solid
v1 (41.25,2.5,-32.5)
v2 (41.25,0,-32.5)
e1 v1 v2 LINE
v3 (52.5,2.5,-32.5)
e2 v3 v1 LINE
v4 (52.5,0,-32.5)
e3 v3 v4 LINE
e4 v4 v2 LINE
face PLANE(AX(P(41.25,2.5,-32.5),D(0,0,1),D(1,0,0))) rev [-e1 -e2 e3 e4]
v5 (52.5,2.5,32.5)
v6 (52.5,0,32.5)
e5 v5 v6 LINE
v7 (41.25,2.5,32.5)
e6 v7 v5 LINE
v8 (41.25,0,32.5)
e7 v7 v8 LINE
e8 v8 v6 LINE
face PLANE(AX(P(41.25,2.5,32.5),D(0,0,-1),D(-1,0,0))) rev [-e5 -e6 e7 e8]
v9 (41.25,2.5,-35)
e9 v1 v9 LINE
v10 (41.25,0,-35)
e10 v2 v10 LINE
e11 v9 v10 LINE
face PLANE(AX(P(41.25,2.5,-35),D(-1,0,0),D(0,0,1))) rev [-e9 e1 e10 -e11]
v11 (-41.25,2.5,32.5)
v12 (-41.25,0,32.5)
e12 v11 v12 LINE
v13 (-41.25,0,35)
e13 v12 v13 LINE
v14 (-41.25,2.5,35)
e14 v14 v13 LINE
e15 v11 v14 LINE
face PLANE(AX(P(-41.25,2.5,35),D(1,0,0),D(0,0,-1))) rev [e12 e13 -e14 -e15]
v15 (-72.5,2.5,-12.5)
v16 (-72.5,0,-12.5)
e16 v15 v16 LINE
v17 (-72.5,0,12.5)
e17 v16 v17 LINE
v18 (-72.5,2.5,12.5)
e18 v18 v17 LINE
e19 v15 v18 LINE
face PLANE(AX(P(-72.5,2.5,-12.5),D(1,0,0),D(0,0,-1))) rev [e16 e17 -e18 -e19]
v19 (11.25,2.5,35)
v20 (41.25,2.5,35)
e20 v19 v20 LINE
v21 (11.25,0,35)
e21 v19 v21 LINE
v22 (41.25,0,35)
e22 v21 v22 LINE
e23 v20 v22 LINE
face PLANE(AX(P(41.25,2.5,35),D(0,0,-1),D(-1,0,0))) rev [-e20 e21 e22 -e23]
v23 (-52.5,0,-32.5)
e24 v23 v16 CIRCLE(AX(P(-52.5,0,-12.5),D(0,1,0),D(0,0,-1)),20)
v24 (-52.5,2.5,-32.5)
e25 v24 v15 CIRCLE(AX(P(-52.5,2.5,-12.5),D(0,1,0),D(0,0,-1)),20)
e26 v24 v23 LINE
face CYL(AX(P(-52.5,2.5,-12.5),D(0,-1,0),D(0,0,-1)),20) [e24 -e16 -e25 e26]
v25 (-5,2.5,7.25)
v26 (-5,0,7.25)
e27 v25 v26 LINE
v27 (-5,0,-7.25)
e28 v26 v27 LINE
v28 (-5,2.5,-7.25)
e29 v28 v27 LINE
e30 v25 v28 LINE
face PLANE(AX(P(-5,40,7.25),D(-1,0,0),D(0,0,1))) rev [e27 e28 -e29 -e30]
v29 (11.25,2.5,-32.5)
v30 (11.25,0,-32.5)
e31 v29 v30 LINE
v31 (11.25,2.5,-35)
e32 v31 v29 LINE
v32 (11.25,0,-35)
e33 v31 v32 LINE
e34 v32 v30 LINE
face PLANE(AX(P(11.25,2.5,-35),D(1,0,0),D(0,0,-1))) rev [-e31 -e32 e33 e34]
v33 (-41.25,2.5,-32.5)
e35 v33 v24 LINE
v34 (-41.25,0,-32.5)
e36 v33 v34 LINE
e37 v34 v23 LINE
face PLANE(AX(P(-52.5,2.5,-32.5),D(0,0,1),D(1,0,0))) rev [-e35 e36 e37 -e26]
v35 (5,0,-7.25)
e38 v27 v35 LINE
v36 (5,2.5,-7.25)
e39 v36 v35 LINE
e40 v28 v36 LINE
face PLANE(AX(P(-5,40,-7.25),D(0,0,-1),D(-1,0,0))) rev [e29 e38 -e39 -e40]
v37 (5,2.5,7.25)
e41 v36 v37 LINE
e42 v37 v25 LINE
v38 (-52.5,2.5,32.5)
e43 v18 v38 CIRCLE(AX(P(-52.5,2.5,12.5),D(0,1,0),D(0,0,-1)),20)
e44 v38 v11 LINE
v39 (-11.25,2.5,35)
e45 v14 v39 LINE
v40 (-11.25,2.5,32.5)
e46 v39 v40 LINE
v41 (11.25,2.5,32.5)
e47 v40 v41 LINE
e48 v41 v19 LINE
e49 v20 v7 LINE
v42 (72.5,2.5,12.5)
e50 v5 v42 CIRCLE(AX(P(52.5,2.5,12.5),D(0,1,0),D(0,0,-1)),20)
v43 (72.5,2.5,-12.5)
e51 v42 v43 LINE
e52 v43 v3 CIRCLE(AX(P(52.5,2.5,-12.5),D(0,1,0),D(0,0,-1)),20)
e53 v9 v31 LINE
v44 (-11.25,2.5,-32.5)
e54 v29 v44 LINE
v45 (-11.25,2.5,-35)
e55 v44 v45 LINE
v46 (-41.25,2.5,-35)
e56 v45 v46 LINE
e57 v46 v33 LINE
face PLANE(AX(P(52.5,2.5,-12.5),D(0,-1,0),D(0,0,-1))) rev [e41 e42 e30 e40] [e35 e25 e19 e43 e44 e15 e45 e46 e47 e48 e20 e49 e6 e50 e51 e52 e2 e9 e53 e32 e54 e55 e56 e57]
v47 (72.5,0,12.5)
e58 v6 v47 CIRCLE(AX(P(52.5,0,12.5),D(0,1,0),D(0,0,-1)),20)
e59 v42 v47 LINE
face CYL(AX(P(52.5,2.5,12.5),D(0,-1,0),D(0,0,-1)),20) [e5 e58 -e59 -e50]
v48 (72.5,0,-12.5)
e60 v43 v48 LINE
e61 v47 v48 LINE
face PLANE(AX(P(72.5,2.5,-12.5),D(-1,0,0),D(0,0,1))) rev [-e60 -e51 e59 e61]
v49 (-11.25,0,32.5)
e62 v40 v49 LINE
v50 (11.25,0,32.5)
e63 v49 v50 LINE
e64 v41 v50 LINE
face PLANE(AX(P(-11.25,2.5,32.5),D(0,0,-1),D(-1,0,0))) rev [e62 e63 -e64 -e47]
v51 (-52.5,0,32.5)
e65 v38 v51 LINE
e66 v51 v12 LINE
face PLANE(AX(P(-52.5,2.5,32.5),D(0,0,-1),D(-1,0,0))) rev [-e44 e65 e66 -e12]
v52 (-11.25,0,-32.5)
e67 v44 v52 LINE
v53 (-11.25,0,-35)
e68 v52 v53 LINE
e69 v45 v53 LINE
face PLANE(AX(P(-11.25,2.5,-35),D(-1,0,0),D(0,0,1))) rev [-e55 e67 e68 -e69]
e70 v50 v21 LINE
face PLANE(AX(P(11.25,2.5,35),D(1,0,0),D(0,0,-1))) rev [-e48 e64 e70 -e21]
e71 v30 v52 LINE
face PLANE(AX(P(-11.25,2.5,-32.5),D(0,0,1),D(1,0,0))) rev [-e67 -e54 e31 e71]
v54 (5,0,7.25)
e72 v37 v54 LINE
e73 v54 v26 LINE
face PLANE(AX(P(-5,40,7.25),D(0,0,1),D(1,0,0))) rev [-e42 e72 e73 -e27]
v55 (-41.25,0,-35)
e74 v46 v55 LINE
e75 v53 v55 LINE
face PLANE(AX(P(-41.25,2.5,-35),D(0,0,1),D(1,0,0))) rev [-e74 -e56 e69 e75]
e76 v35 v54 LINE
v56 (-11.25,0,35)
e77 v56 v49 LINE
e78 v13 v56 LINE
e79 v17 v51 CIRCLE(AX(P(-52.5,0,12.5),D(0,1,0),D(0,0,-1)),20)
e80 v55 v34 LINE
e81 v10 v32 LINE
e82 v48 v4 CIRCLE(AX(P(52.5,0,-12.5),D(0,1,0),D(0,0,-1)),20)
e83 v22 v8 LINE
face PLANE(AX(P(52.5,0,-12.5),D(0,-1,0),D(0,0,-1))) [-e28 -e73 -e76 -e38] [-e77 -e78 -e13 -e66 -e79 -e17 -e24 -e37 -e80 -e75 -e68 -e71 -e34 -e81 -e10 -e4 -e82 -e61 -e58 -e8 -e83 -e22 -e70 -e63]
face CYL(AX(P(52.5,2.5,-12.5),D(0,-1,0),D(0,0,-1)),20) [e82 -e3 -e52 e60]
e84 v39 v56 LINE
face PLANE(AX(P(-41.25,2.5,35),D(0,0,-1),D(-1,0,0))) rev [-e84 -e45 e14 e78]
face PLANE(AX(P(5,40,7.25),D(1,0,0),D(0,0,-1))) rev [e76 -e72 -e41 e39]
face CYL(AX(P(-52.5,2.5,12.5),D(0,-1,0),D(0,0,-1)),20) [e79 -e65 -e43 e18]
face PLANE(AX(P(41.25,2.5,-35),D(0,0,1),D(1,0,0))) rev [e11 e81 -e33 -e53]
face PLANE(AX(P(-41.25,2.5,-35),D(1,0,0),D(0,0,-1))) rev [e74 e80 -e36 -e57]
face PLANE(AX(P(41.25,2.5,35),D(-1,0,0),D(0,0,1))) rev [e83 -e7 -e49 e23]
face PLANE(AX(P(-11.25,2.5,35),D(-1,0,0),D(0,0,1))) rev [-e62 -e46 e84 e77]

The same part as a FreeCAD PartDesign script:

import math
import FreeCAD as App
import Part
import Sketcher
Q = App.Units.Quantity


def add_polygon(sketch, points):
    """Adds a closed chain of lines whose ends are joined by coincident constraints."""
    first, n = sketch.GeometryCount, len(points)
    for a, b in zip(points, points[1:] + points[:1]):
        sketch.addGeometry(Part.LineSegment(App.Vector(*a, 0), App.Vector(*b, 0)), False)
    for i in range(n):
        sketch.addConstraint(Sketcher.Constraint("Coincident", first + i, 2, first + (i + 1) % n, 1))

doc = App.newDocument("Part")
body = doc.addObject("PartDesign::Body", "Body")

# Sketch on XZ plane
sketch1 = doc.addObject("Sketcher::SketchObject", "Sketch")
body.addObject(sketch1)
sketch1.AttachmentSupport = (doc.XZ_Plane, [""])
sketch1.MapMode = "FlatFace"
sketch1.addGeometry([
    Part.LineSegment(App.Vector(-41.2, -32.5, 0), App.Vector(-52.5, -32.5, 0)),  # 0
    Part.ArcOfCircle(Part.Circle(App.Vector(-52.5, -12.5, 0), App.Vector(0, 0, 1), 20), math.radians(180), math.radians(270)),  # 1
    Part.LineSegment(App.Vector(-72.5, -12.5, 0), App.Vector(-72.5, 12.5, 0)),  # 2
    Part.ArcOfCircle(Part.Circle(App.Vector(-52.5, 12.5, 0), App.Vector(0, 0, 1), 20), math.radians(90), math.radians(180)),  # 3
    Part.LineSegment(App.Vector(-52.5, 32.5, 0), App.Vector(-41.2, 32.5, 0)),  # 4
    Part.LineSegment(App.Vector(-41.2, 32.5, 0), App.Vector(-41.2, 35, 0)),  # 5
    Part.LineSegment(App.Vector(-41.2, 35, 0), App.Vector(-11.2, 35, 0)),  # 6
    Part.LineSegment(App.Vector(-11.2, 35, 0), App.Vector(-11.2, 32.5, 0)),  # 7
    Part.LineSegment(App.Vector(-11.2, 32.5, 0), App.Vector(11.2, 32.5, 0)),  # 8
    Part.LineSegment(App.Vector(11.2, 32.5, 0), App.Vector(11.2, 35, 0)),  # 9
    Part.LineSegment(App.Vector(11.2, 35, 0), App.Vector(41.2, 35, 0)),  # 10
    Part.LineSegment(App.Vector(41.2, 35, 0), App.Vector(41.2, 32.5, 0)),  # 11
    Part.LineSegment(App.Vector(41.2, 32.5, 0), App.Vector(52.5, 32.5, 0)),  # 12
    Part.ArcOfCircle(Part.Circle(App.Vector(52.5, 12.5, 0), App.Vector(0, 0, 1), 20), math.radians(0), math.radians(90)),  # 13
    Part.LineSegment(App.Vector(72.5, 12.5, 0), App.Vector(72.5, -12.5, 0)),  # 14
    Part.ArcOfCircle(Part.Circle(App.Vector(52.5, -12.5, 0), App.Vector(0, 0, 1), 20), math.radians(-90), math.radians(0)),  # 15
    Part.LineSegment(App.Vector(52.5, -32.5, 0), App.Vector(41.2, -32.5, 0)),  # 16
    Part.LineSegment(App.Vector(41.2, -32.5, 0), App.Vector(41.2, -35, 0)),  # 17
    Part.LineSegment(App.Vector(41.2, -35, 0), App.Vector(11.2, -35, 0)),  # 18
    Part.LineSegment(App.Vector(11.2, -35, 0), App.Vector(11.2, -32.5, 0)),  # 19
    Part.LineSegment(App.Vector(11.2, -32.5, 0), App.Vector(-11.2, -32.5, 0)),  # 20
    Part.LineSegment(App.Vector(-11.2, -32.5, 0), App.Vector(-11.2, -35, 0)),  # 21
    Part.LineSegment(App.Vector(-11.2, -35, 0), App.Vector(-41.2, -35, 0)),  # 22
    Part.LineSegment(App.Vector(-41.2, -35, 0), App.Vector(-41.2, -32.5, 0)),  # 23
], False)
sketch1.addConstraint([
    Sketcher.Constraint("Tangent", 0, 2, 1, 2),
    Sketcher.Constraint("Tangent", 1, 1, 2, 1),
    Sketcher.Constraint("Tangent", 2, 2, 3, 2),
    Sketcher.Constraint("Tangent", 3, 1, 4, 1),
    Sketcher.Constraint("Coincident", 4, 2, 5, 1),
    Sketcher.Constraint("Coincident", 5, 2, 6, 1),
    Sketcher.Constraint("Coincident", 6, 2, 7, 1),
    Sketcher.Constraint("Coincident", 7, 2, 8, 1),
    Sketcher.Constraint("Coincident", 8, 2, 9, 1),
    Sketcher.Constraint("Coincident", 9, 2, 10, 1),
    Sketcher.Constraint("Coincident", 10, 2, 11, 1),
    Sketcher.Constraint("Coincident", 11, 2, 12, 1),
    Sketcher.Constraint("Tangent", 12, 2, 13, 2),
    Sketcher.Constraint("Tangent", 13, 1, 14, 1),
    Sketcher.Constraint("Tangent", 14, 2, 15, 2),
    Sketcher.Constraint("Tangent", 15, 1, 16, 1),
    Sketcher.Constraint("Coincident", 16, 2, 17, 1),
    Sketcher.Constraint("Coincident", 17, 2, 18, 1),
    Sketcher.Constraint("Coincident", 18, 2, 19, 1),
    Sketcher.Constraint("Coincident", 19, 2, 20, 1),
    Sketcher.Constraint("Coincident", 20, 2, 21, 1),
    Sketcher.Constraint("Coincident", 21, 2, 22, 1),
    Sketcher.Constraint("Coincident", 22, 2, 23, 1),
    Sketcher.Constraint("Coincident", 23, 2, 0, 1),
    Sketcher.Constraint("Horizontal", 0),
    Sketcher.Constraint("Vertical", 2),
    Sketcher.Constraint("Horizontal", 4),
    Sketcher.Constraint("Vertical", 5),
    Sketcher.Constraint("Horizontal", 6),
    Sketcher.Constraint("Vertical", 7),
    Sketcher.Constraint("Horizontal", 8),
    Sketcher.Constraint("Vertical", 9),
    Sketcher.Constraint("Horizontal", 10),
    Sketcher.Constraint("Vertical", 11),
    Sketcher.Constraint("Horizontal", 12),
    Sketcher.Constraint("Vertical", 14),
    Sketcher.Constraint("Horizontal", 16),
    Sketcher.Constraint("Vertical", 17),
    Sketcher.Constraint("Horizontal", 18),
    Sketcher.Constraint("Vertical", 19),
    Sketcher.Constraint("Horizontal", 20),
    Sketcher.Constraint("Vertical", 21),
    Sketcher.Constraint("Horizontal", 22),
    Sketcher.Constraint("Vertical", 23),
    Sketcher.Constraint("Equal", 1, 3),
    Sketcher.Constraint("Equal", 3, 13),
    Sketcher.Constraint("Equal", 13, 15),
    Sketcher.Constraint("Symmetric", 1, 3, 13, 3, -1, 1),
    Sketcher.Constraint("Symmetric", 4, 2, 16, 2, -1, 1),
    Sketcher.Constraint("Symmetric", 6, 2, 18, 2, -1, 1),
    Sketcher.Constraint("Symmetric", 8, 2, 20, 2, -1, 1),
    Sketcher.Constraint("Symmetric", 10, 2, 22, 2, -1, 1),
    Sketcher.Constraint("Symmetric", 6, 2, 9, 2, -2),
    Sketcher.Constraint("Symmetric", 4, 2, 11, 2, -2),
    Sketcher.Constraint("Horizontal", 4, 2, 7, 2),
    Sketcher.Constraint("Radius", 1, Q("20 mm")),
    Sketcher.Constraint("DistanceX", 6, 1, 6, 2, Q("30 mm")),
    Sketcher.Constraint("DistanceY", 2, 1, 2, 2, Q("25 mm")),
    Sketcher.Constraint("DistanceX", 8, 1, 8, 2, Q("22.5 mm")),
    Sketcher.Constraint("DistanceY", 5, 1, 5, 2, Q("2.5 mm")),
    Sketcher.Constraint("DistanceX", 3, 3, 13, 3, Q("105 mm")),
])
pad1 = doc.addObject("PartDesign::Pad", "Pad")
body.addObject(pad1)
pad1.Profile = sketch1
pad1.Length = 2.5
pad1.Reversed = True

# Sketch on XZ plane
sketch2 = doc.addObject("Sketcher::SketchObject", "Sketch001")
body.addObject(sketch2)
sketch2.AttachmentSupport = (doc.XZ_Plane, [""])
sketch2.MapMode = "FlatFace"
add_polygon(sketch2, [(-5, 7), (-5, -7), (5, -7), (5, 7)])  # lines 0-3
sketch2.addConstraint([
    Sketcher.Constraint("Vertical", 0),
    Sketcher.Constraint("Horizontal", 1),
    Sketcher.Constraint("Vertical", 2),
    Sketcher.Constraint("Horizontal", 3),
    Sketcher.Constraint("Symmetric", 0, 2, 2, 2, -1, 1),
    Sketcher.Constraint("DistanceX", 1, 1, 1, 2, Q("10 mm")),
    Sketcher.Constraint("DistanceY", 0, 2, 0, 1, Q("14.5 mm")),
])
pocket1 = doc.addObject("PartDesign::Pocket", "Pocket")
body.addObject(pocket1)
pocket1.Profile = sketch2
pocket1.Length = 40

doc.recompute()
